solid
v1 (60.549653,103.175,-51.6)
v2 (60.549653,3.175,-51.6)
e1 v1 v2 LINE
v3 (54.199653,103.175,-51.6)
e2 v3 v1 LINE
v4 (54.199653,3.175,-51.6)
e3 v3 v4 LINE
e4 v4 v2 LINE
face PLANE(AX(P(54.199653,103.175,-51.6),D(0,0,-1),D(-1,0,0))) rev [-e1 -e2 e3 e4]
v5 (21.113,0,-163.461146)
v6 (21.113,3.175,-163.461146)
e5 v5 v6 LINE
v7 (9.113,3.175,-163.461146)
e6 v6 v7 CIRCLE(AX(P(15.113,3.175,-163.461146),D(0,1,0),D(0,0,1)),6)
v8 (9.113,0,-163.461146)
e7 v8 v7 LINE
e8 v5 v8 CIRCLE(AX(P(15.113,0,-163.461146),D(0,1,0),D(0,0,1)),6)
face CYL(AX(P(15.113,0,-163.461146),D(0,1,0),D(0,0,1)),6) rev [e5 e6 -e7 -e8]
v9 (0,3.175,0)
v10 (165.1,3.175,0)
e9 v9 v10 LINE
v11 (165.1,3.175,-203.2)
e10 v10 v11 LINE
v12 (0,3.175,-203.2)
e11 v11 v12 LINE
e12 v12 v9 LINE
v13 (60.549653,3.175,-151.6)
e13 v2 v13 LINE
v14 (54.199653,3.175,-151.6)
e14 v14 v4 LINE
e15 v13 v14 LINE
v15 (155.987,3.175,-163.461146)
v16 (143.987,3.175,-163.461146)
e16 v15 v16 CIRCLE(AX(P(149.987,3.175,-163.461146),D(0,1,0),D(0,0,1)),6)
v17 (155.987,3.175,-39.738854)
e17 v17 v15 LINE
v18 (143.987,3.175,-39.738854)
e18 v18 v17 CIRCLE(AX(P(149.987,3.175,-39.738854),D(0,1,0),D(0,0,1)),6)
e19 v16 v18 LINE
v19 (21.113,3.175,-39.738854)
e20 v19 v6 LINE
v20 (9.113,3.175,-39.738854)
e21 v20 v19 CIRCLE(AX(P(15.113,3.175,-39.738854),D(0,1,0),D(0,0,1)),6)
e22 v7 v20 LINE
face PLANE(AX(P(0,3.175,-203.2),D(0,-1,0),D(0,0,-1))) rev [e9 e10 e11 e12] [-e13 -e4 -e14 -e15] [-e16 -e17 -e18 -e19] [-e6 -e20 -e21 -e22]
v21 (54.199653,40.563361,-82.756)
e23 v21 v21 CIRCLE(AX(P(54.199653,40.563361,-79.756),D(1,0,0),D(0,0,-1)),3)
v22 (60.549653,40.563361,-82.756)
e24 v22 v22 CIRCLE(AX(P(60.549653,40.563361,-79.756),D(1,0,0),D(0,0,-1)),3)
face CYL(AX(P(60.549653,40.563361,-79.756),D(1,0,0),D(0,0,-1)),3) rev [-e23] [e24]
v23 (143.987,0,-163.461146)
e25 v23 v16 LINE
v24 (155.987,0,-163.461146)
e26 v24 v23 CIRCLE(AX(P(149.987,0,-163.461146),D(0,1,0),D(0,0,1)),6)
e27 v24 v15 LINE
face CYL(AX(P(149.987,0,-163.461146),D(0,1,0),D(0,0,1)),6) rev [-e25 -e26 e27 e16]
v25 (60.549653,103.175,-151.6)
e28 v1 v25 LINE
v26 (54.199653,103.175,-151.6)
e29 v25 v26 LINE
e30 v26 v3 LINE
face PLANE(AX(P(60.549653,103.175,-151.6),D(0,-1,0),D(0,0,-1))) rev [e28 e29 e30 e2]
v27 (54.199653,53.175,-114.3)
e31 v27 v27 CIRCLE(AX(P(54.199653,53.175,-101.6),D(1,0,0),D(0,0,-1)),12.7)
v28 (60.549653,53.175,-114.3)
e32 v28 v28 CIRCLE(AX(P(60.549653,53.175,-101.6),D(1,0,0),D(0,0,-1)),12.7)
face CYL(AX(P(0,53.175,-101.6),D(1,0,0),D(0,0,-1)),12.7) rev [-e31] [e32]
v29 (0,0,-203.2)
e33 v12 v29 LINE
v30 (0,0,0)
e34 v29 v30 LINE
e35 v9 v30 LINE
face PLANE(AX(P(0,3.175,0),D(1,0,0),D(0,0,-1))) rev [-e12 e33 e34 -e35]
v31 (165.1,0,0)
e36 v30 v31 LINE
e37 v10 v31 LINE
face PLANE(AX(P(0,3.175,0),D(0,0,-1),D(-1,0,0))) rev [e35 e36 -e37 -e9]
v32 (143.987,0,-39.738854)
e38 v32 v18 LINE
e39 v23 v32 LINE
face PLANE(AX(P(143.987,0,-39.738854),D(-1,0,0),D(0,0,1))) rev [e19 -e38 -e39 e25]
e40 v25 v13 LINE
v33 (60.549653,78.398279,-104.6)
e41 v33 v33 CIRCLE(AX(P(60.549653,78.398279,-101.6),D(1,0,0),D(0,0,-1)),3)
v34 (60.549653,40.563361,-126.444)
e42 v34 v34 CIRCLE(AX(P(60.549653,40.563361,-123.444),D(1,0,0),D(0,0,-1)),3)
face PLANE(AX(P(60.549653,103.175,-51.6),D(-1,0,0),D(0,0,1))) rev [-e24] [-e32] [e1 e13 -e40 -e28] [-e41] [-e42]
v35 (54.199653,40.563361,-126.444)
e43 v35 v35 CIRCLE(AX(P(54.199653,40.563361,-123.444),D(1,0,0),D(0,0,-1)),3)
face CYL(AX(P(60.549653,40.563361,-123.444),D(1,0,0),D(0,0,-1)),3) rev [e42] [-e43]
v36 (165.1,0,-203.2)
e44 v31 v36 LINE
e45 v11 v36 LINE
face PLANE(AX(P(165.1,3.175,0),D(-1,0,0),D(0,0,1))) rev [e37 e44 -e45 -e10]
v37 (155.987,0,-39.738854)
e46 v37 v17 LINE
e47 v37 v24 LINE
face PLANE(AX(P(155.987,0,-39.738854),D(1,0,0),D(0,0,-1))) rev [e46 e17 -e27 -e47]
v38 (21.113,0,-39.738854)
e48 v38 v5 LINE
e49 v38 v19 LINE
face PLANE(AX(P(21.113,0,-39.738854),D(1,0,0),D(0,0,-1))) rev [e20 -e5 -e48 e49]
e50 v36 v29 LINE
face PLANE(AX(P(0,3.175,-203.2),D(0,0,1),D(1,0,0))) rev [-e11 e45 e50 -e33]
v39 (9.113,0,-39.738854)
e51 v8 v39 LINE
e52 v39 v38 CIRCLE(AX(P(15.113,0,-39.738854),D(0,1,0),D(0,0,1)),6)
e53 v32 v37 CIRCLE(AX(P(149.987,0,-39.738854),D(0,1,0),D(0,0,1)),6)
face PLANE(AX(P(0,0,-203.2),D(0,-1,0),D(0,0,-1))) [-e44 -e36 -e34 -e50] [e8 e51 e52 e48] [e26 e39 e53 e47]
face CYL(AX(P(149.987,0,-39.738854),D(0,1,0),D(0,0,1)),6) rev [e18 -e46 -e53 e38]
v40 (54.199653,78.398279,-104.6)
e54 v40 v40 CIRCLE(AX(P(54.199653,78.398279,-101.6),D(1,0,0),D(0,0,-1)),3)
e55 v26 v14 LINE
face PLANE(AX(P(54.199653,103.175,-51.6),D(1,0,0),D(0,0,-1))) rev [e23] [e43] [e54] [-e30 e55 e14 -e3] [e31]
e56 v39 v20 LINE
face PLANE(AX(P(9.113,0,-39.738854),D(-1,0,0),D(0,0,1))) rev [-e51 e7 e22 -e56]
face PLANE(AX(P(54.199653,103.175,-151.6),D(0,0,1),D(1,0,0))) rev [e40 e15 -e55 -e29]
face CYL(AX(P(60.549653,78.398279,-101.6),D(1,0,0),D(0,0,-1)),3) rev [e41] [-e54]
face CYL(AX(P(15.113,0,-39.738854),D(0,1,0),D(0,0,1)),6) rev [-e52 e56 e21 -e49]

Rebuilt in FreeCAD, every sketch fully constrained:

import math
import FreeCAD as App
import Part
import Sketcher
Q = App.Units.Quantity

doc = App.newDocument("Part")
body = doc.addObject("PartDesign::Body", "Body")

sketch1 = body.newObject("Sketcher::SketchObject", "Sketch")
sketch1.AttachmentSupport = (doc.getObject("XZ_Plane"), [""])
sketch1.MapMode = "FlatFace"
sketch1.addGeometry([
    Part.LineSegment(App.Vector(0, -203, 0), App.Vector(0, 0, 0)),
    Part.LineSegment(App.Vector(0, 0, 0), App.Vector(165, 0, 0)),
    Part.LineSegment(App.Vector(165, 0, 0), App.Vector(165, -203, 0)),
    Part.LineSegment(App.Vector(165, -203, 0), App.Vector(0, -203, 0)),
], False)
sketch1.addConstraint([
    Sketcher.Constraint("Coincident", 0, 2, 1, 1),
    Sketcher.Constraint("Coincident", 1, 2, 2, 1),
    Sketcher.Constraint("Coincident", 2, 2, 3, 1),
    Sketcher.Constraint("Coincident", 3, 2, 0, 1),
    Sketcher.Constraint("Vertical", 0),
    Sketcher.Constraint("Horizontal", 1),
    Sketcher.Constraint("Vertical", 2),
    Sketcher.Constraint("Horizontal", 3),
    Sketcher.Constraint("Coincident", 0, 2, -1, 1),
    Sketcher.Constraint("DistanceY", 0, 1, 0, 2, Q("8 in")),
    Sketcher.Constraint("DistanceX", 1, 1, 1, 2, Q("6.5 in")),
])
pad1 = body.newObject("PartDesign::Pad", "Pad")
pad1.Profile = sketch1
pad1.Length = Q("0.125 in")
pad1.Reversed = True

sketch2 = body.newObject("Sketcher::SketchObject", "Sketch001")
sketch2.AttachmentSupport = (doc.getObject("XZ_Plane"), [""])
sketch2.MapMode = "FlatFace"
sketch2.AttachmentOffset = App.Placement(App.Vector(0, 0, -0.125 * 25.4), App.Rotation())
sketch2.addGeometry([
    Part.LineSegment(App.Vector(9, -163, 0), App.Vector(9, -40, 0)),
    Part.ArcOfCircle(Part.Circle(App.Vector(15, -40, 0), App.Vector(0, 0, 1), 6), math.radians(0), math.radians(180)),
    Part.LineSegment(App.Vector(21, -40, 0), App.Vector(21, -163, 0)),
    Part.ArcOfCircle(Part.Circle(App.Vector(15, -163, 0), App.Vector(0, 0, 1), 6), math.radians(180), math.radians(360)),
    Part.LineSegment(App.Vector(144, -163, 0), App.Vector(144, -40, 0)),
    Part.ArcOfCircle(Part.Circle(App.Vector(150, -40, 0), App.Vector(0, 0, 1), 6), math.radians(0), math.radians(180)),
    Part.LineSegment(App.Vector(156, -40, 0), App.Vector(156, -163, 0)),
    Part.ArcOfCircle(Part.Circle(App.Vector(150, -163, 0), App.Vector(0, 0, 1), 6), math.radians(180), math.radians(360)),
], False)
sketch2.addConstraint([
    Sketcher.Constraint("Tangent", 0, 2, 1, 2),
    Sketcher.Constraint("Tangent", 1, 1, 2, 1),
    Sketcher.Constraint("Tangent", 2, 2, 3, 2),
    Sketcher.Constraint("Tangent", 3, 1, 0, 1),
    Sketcher.Constraint("Tangent", 4, 2, 5, 2),
    Sketcher.Constraint("Tangent", 5, 1, 6, 1),
    Sketcher.Constraint("Tangent", 6, 2, 7, 2),
    Sketcher.Constraint("Tangent", 7, 1, 4, 1),
    Sketcher.Constraint("Vertical", 0),
    Sketcher.Constraint("Vertical", 2),
    Sketcher.Constraint("Vertical", 4),
    Sketcher.Constraint("Vertical", 6),
    Sketcher.Constraint("Equal", 3, 5),
    Sketcher.Constraint("Horizontal", 1, 3, 5, 3),
    Sketcher.Constraint("Horizontal", 3, 3, 7, 3),
    Sketcher.Constraint("Radius", 1, Q("6 mm")),
    Sketcher.Constraint("DistanceX", 1, 3, 5, 3, Q("5.31 in")),
    Sketcher.Constraint("DistanceX", -1, 1, 1, 3, Q("0.595 in")),
    Sketcher.Constraint("DistanceY", 0, 1, 0, 2, Q("123.722291 mm")),
    Sketcher.Constraint("DistanceY", 1, 3, -1, 1, Q("39.738854 mm")),
])
pocket1 = body.newObject("PartDesign::Pocket", "Pocket")
pocket1.Profile = sketch2
pocket1.Type = "ThroughAll"
pocket1.Reversed = True

sketch3 = body.newObject("Sketcher::SketchObject", "Sketch002")
sketch3.AttachmentSupport = (doc.getObject("XZ_Plane"), [""])
sketch3.MapMode = "FlatFace"
sketch3.AttachmentOffset = App.Placement(App.Vector(0, 0, -0.125 * 25.4), App.Rotation())
sketch3.addGeometry([
    Part.LineSegment(App.Vector(61, -52, 0), App.Vector(61, -152, 0)),
    Part.LineSegment(App.Vector(61, -152, 0), App.Vector(54, -152, 0)),
    Part.LineSegment(App.Vector(54, -152, 0), App.Vector(54, -52, 0)),
    Part.LineSegment(App.Vector(54, -52, 0), App.Vector(61, -52, 0)),
], False)
sketch3.addConstraint([
    Sketcher.Constraint("Coincident", 0, 2, 1, 1),
    Sketcher.Constraint("Coincident", 1, 2, 2, 1),
    Sketcher.Constraint("Coincident", 2, 2, 3, 1),
    Sketcher.Constraint("Coincident", 3, 2, 0, 1),
    Sketcher.Constraint("Vertical", 0),
    Sketcher.Constraint("Horizontal", 1),
    Sketcher.Constraint("Vertical", 2),
    Sketcher.Constraint("Horizontal", 3),
    Sketcher.Constraint("DistanceX", 1, 2, 1, 1, Q("0.25 in")),
    Sketcher.Constraint("DistanceY", 0, 2, 0, 1, Q("100 mm")),
    Sketcher.Constraint("DistanceY", 0, 2, -1, 1, Q("151.6 mm")),
    Sketcher.Constraint("DistanceX", -1, 1, 0, 2, Q("60.549653 mm")),
])
pad2 = body.newObject("PartDesign::Pad", "Pad001")
pad2.Profile = sketch3
pad2.Length = 100
pad2.Reversed = True

sketch4 = body.newObject("Sketcher::SketchObject", "Sketch003")
sketch4.AttachmentSupport = (doc.getObject("YZ_Plane"), [""])
sketch4.MapMode = "FlatFace"
sketch4.AttachmentOffset = App.Placement(App.Vector(0, 0, 60.549653), App.Rotation())
sketch4.addGeometry([
    Part.Circle(App.Vector(78.4, -101.6, 0), App.Vector(0, 0, 1), 3),
    Part.Circle(App.Vector(40.6, -79.8, 0), App.Vector(0, 0, 1), 3),
    Part.Circle(App.Vector(40.6, -123.4, 0), App.Vector(0, 0, 1), 3),
], False)
sketch4.addConstraint([
    Sketcher.Constraint("Equal", 0, 1),
    Sketcher.Constraint("Equal", 1, 2),
    Sketcher.Constraint("Vertical", 1, 3, 2, 3),
    Sketcher.Constraint("DistanceY", 0, 3, -1, 1, Q("4 in")),
    Sketcher.Constraint("Diameter", 0, Q("6 mm")),
    Sketcher.Constraint("DistanceY", 1, 3, -1, 1, Q("3.14 in")),
    Sketcher.Constraint("DistanceY", 2, 3, -1, 1, Q("4.86 in")),
    Sketcher.Constraint("DistanceX", -1, 1, 0, 3, Q("78.398279 mm")),
    Sketcher.Constraint("DistanceX", -1, 1, 1, 3, Q("40.563361 mm")),
])
doc.recompute()
hole = body.newObject("PartDesign::Hole", "Hole")
hole.Profile = sketch4
hole.ThreadType = "None"
hole.Diameter = 6
hole.DepthType = "ThroughAll"

sketch5 = body.newObject("Sketcher::SketchObject", "Sketch004")
sketch5.AttachmentSupport = (doc.getObject("YZ_Plane"), [""])
sketch5.MapMode = "FlatFace"
sketch5.AttachmentOffset = App.Placement(App.Vector(0, 0, 60.549653), App.Rotation())
sketch5.addGeometry(Part.Circle(App.Vector(53, -102, 0), App.Vector(0, 0, 1), 13), False)
sketch5.addConstraint([
    Sketcher.Constraint("Diameter", 0, Q("1 in")),
    Sketcher.Constraint("DistanceY", 0, 3, -1, 1, Q("4 in")),
    Sketcher.Constraint("DistanceX", -1, 1, 0, 3, Q("53.175 mm")),
])
pocket2 = body.newObject("PartDesign::Pocket", "Pocket001")
pocket2.Profile = sketch5
pocket2.Type = "ThroughAll"

doc.recompute()
